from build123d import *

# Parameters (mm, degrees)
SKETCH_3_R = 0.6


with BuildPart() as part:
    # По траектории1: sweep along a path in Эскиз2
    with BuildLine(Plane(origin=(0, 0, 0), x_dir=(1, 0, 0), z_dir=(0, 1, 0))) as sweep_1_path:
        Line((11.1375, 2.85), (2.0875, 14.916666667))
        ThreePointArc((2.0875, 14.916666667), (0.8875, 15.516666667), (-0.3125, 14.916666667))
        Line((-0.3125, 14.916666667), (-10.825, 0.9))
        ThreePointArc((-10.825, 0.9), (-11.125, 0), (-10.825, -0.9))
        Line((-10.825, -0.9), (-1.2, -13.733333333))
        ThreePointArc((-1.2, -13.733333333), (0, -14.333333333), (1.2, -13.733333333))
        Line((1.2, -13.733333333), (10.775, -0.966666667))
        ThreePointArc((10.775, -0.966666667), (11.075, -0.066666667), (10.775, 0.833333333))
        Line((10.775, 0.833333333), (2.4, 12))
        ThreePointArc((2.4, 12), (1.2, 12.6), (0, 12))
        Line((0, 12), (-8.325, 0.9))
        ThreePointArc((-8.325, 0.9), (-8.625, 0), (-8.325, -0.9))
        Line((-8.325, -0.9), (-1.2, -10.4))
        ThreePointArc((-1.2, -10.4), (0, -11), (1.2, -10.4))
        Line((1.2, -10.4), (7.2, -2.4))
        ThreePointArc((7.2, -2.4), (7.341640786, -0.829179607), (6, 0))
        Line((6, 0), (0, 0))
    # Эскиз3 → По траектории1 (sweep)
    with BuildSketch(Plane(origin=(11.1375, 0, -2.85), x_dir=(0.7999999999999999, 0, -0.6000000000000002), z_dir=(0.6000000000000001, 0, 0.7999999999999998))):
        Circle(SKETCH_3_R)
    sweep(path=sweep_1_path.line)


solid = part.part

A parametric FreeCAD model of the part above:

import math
import FreeCAD as App
import Part
import Sketcher

doc = App.newDocument("Part")
body = doc.addObject("PartDesign::Body", "Body")

sketch1 = body.newObject("Sketcher::SketchObject", "Sketch")
sketch1.Placement = App.Placement(App.Vector(11.1375, 0, -2.85), App.Rotation(App.Vector(0.8, 0, -0.6), App.Vector(0, 1, 0), App.Vector(0.6, 0, 0.8), "ZXY"))
sketch1.addGeometry(Part.Circle(App.Vector(0, 0, 0), App.Vector(0, 0, 1), 0.6), False)
sketch1.addConstraint([
    Sketcher.Constraint("Coincident", 0, 3, -1, 1),
    Sketcher.Constraint("Diameter", 0, 1.2),
])

sketch2 = body.newObject("Sketcher::SketchObject", "Sketch001")
sketch2.AttachmentSupport = (doc.getObject("XZ_Plane"), [""])
sketch2.MapMode = "FlatFace"
sketch2.addGeometry([
    Part.LineSegment(App.Vector(11.1, -2.9, 0), App.Vector(2.1, -14.9, 0)),
    Part.ArcOfCircle(Part.Circle(App.Vector(0.9, -14, 0), App.Vector(0, 0, 1), 1.5), math.radians(-143), math.radians(-37)),
    Part.LineSegment(App.Vector(-0.3, -14.9, 0), App.Vector(-10.8, -0.9, 0)),
    Part.ArcOfCircle(Part.Circle(App.Vector(-9.6, 0, 0), App.Vector(0, 0, 1), 1.5), math.radians(143), math.radians(217)),
    Part.LineSegment(App.Vector(-10.8, 0.9, 0), App.Vector(-1.2, 13.7, 0)),
    Part.ArcOfCircle(Part.Circle(App.Vector(0, 12.8, 0), App.Vector(0, 0, 1), 1.5), math.radians(37), math.radians(143)),
    Part.LineSegment(App.Vector(1.2, 13.7, 0), App.Vector(10.8, 1, 0)),
    Part.ArcOfCircle(Part.Circle(App.Vector(9.6, 0.1, 0), App.Vector(0, 0, 1), 1.5), math.radians(-37), math.radians(37)),
    Part.LineSegment(App.Vector(10.8, -0.8, 0), App.Vector(2.4, -12, 0)),
    Part.ArcOfCircle(Part.Circle(App.Vector(1.2, -11.1, 0), App.Vector(0, 0, 1), 1.5), math.radians(-143), math.radians(-37)),
    Part.LineSegment(App.Vector(0, -12, 0), App.Vector(-8.3, -0.9, 0)),
    Part.ArcOfCircle(Part.Circle(App.Vector(-7.1, 0, 0), App.Vector(0, 0, 1), 1.5), math.radians(143), math.radians(217)),
    Part.LineSegment(App.Vector(-8.3, 0.9, 0), App.Vector(-1.2, 10.4, 0)),
    Part.ArcOfCircle(Part.Circle(App.Vector(0, 9.5, 0), App.Vector(0, 0, 1), 1.5), math.radians(37), math.radians(143)),
    Part.LineSegment(App.Vector(1.2, 10.4, 0), App.Vector(7.2, 2.4, 0)),
    Part.ArcOfCircle(Part.Circle(App.Vector(6, 1.5, 0), App.Vector(0, 0, 1), 1.5), math.radians(-90), math.radians(37)),
    Part.LineSegment(App.Vector(6, 0, 0), App.Vector(0, 0, 0)),
], False)
sketch2.addConstraint([
    Sketcher.Constraint("Tangent", 0, 2, 1, 2),
    Sketcher.Constraint("Tangent", 1, 1, 2, 1),
    Sketcher.Constraint("Tangent", 2, 2, 3, 2),
    Sketcher.Constraint("Tangent", 3, 1, 4, 1),
    Sketcher.Constraint("Tangent", 4, 2, 5, 2),
    Sketcher.Constraint("Tangent", 5, 1, 6, 1),
    Sketcher.Constraint("Tangent", 6, 2, 7, 2),
    Sketcher.Constraint("Tangent", 7, 1, 8, 1),
    Sketcher.Constraint("Tangent", 8, 2, 9, 2),
    Sketcher.Constraint("Tangent", 9, 1, 10, 1),
    Sketcher.Constraint("Tangent", 10, 2, 11, 2),
    Sketcher.Constraint("Tangent", 11, 1, 12, 1),
    Sketcher.Constraint("Tangent", 12, 2, 13, 2),
    Sketcher.Constraint("Tangent", 13, 1, 14, 1),
    Sketcher.Constraint("Tangent", 14, 2, 15, 2),
    Sketcher.Constraint("Tangent", 15, 1, 16, 1),
    Sketcher.Constraint("Horizontal", 16),
    Sketcher.Constraint("Coincident", 16, 2, -1, 1),
    Sketcher.Constraint("Equal", 1, 3),
    Sketcher.Constraint("Equal", 3, 5),
    Sketcher.Constraint("Equal", 5, 7),
    Sketcher.Constraint("Equal", 7, 9),
    Sketcher.Constraint("Equal", 9, 11),
    Sketcher.Constraint("Equal", 11, 13),
    Sketcher.Constraint("Equal", 13, 15),
    Sketcher.Constraint("Symmetric", 4, 2, 5, 1, -2),
    Sketcher.Constraint("Symmetric", 12, 2, 13, 1, -2),
    Sketcher.Constraint("Symmetric", 2, 2, 3, 1, -1),
    Sketcher.Constraint("Symmetric", 10, 2, 11, 1, -1),
    Sketcher.Constraint("PointOnObject", 9, 1, -2),
    Sketcher.Constraint("Parallel", 0, 4),
    Sketcher.Constraint("Parallel", 4, 8),
    Sketcher.Constraint("Parallel", 6, 10),
    Sketcher.Constraint("Radius", 1, 1.5),
    Sketcher.Constraint("DistanceX", 16, 2, 16, 1, 6.0),
    Sketcher.Constraint("Distance", 14, 10.0),
    Sketcher.Constraint("DistanceX", 3, 3, 7, 3, 19.2),
    Sketcher.Constraint("DistanceY", 0, 1, -1, 1, 2.85),
    Sketcher.Constraint("DistanceY", 1, 3, 5, 3, 26.85),
])
doc.recompute()

additivepipe = body.newObject("PartDesign::AdditivePipe", "AdditivePipe")
additivepipe.Profile = sketch1
additivepipe.Spine = (sketch2, ["Edge1", "Edge2", "Edge3", "Edge4", "Edge5", "Edge6", "Edge7", "Edge8", "Edge9", "Edge10", "Edge11", "Edge12", "Edge13", "Edge14", "Edge15", "Edge16", "Edge17"])

doc.recompute()
